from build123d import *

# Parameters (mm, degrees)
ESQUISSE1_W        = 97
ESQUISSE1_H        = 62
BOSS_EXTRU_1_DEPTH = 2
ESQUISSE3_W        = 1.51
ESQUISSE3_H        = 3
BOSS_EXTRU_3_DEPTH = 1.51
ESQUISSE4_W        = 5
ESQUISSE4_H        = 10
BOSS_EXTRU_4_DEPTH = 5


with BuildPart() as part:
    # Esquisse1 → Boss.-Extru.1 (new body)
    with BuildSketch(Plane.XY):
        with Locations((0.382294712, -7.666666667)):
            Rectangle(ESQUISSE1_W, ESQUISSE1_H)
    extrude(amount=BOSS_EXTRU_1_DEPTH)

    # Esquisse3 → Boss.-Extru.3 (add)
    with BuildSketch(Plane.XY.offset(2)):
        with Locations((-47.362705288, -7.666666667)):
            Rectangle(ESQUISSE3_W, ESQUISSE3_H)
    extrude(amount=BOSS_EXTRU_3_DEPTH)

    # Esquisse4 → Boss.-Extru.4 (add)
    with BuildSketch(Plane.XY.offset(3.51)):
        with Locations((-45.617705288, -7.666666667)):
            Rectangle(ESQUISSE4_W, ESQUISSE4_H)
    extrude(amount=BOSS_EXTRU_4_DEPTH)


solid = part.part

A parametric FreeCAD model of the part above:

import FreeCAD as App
import Part
import Sketcher

V = App.Vector


def add_polygon(sketch, points):
    """Adds a closed chain of lines whose ends are joined by coincident constraints."""
    first, n = sketch.GeometryCount, len(points)
    for a, b in zip(points, points[1:] + points[:1]):
        sketch.addGeometry(Part.LineSegment(App.Vector(*a, 0), App.Vector(*b, 0)), False)
    for i in range(n):
        sketch.addConstraint(Sketcher.Constraint("Coincident", first + i, 2, first + (i + 1) % n, 1))

doc = App.newDocument("Part")
body = doc.addObject("PartDesign::Body", "Body")

# Sketch on XY plane
sketch1 = body.newObject("Sketcher::SketchObject", "Sketch")
sketch1.AttachmentSupport = (doc.getObject("XY_Plane"), [""])
sketch1.MapMode = "FlatFace"
add_polygon(sketch1, [(-48, 23), (-48, -39), (49, -39), (49, 23)])  # lines 0-3
sketch1.addConstraint(Sketcher.Constraint("Vertical", 0))
sketch1.addConstraint(Sketcher.Constraint("Horizontal", 1))
sketch1.addConstraint(Sketcher.Constraint("Vertical", 2))
sketch1.addConstraint(Sketcher.Constraint("Horizontal", 3))
sketch1.addConstraint(Sketcher.Constraint("DistanceX", 1, 1, 1, 2, 97.0))
sketch1.addConstraint(Sketcher.Constraint("DistanceY", 0, 2, 0, 1, 62.0))
sketch1.addConstraint(Sketcher.Constraint("DistanceX", 0, 2, -1, 1, 48.117705))
sketch1.addConstraint(Sketcher.Constraint("DistanceY", 0, 2, -1, 1, 38.666667))
pad1 = body.newObject("PartDesign::Pad", "Pad")
pad1.Profile = sketch1
pad1.Length = 2

# Sketch on XY plane
sketch2 = body.newObject("Sketcher::SketchObject", "Sketch001")
sketch2.AttachmentSupport = (doc.getObject("XY_Plane"), [""])
sketch2.MapMode = "FlatFace"
sketch2.AttachmentOffset = App.Placement(V(0, 0, 2), App.Rotation())
add_polygon(sketch2, [(-48.1, -6.2), (-48.1, -9.2), (-46.6, -9.2), (-46.6, -6.2)])  # lines 0-3
sketch2.addConstraint(Sketcher.Constraint("Vertical", 0))
sketch2.addConstraint(Sketcher.Constraint("Horizontal", 1))
sketch2.addConstraint(Sketcher.Constraint("Vertical", 2))
sketch2.addConstraint(Sketcher.Constraint("Horizontal", 3))
sketch2.addConstraint(Sketcher.Constraint("DistanceY", 0, 2, 0, 1, 3.0))
sketch2.addConstraint(Sketcher.Constraint("DistanceX", 1, 1, 1, 2, 1.51))
sketch2.addConstraint(Sketcher.Constraint("DistanceX", 0, 2, -1, 1, 48.117705))
sketch2.addConstraint(Sketcher.Constraint("DistanceY", 0, 2, -1, 1, 9.166667))
pad2 = body.newObject("PartDesign::Pad", "Pad001")
pad2.Profile = sketch2
pad2.Length = 1.51

# Sketch on XY plane
sketch3 = body.newObject("Sketcher::SketchObject", "Sketch002")
sketch3.AttachmentSupport = (doc.getObject("XY_Plane"), [""])
sketch3.MapMode = "FlatFace"
sketch3.AttachmentOffset = App.Placement(V(0, 0, 3.51), App.Rotation())
add_polygon(sketch3, [(-48, -3), (-48, -13), (-43, -13), (-43, -3)])  # lines 0-3
sketch3.addConstraint(Sketcher.Constraint("Vertical", 0))
sketch3.addConstraint(Sketcher.Constraint("Horizontal", 1))
sketch3.addConstraint(Sketcher.Constraint("Vertical", 2))
sketch3.addConstraint(Sketcher.Constraint("Horizontal", 3))
sketch3.addConstraint(Sketcher.Constraint("DistanceX", 1, 1, 1, 2, 5.0))
sketch3.addConstraint(Sketcher.Constraint("DistanceY", 0, 2, 0, 1, 10.0))
sketch3.addConstraint(Sketcher.Constraint("DistanceX", 0, 2, -1, 1, 48.117705))
sketch3.addConstraint(Sketcher.Constraint("DistanceY", 0, 2, -1, 1, 12.666667))
pad3 = body.newObject("PartDesign::Pad", "Pad002")
pad3.Profile = sketch3
pad3.Length = 5

doc.recompute()
